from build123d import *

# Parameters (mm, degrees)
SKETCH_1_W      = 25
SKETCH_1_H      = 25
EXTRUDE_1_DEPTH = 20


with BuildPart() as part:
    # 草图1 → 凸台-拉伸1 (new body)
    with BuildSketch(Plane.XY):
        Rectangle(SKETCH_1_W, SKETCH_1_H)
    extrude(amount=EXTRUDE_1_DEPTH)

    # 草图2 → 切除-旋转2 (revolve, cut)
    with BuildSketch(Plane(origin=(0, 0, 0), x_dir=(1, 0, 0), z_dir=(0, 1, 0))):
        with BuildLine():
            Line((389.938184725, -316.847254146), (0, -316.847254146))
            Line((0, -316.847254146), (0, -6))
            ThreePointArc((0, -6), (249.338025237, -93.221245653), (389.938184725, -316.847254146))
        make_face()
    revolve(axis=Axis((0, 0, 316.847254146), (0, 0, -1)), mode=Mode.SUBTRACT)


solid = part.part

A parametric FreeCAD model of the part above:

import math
import FreeCAD as App
import Part
import Sketcher
from FreeCAD import Vector
Q = App.Units.Quantity


def add_polygon(sketch, points):
    """Adds a closed chain of lines whose ends are joined by coincident constraints."""
    first, n = sketch.GeometryCount, len(points)
    for a, b in zip(points, points[1:] + points[:1]):
        sketch.addGeometry(Part.LineSegment(App.Vector(*a, 0), App.Vector(*b, 0)), False)
    for i in range(n):
        sketch.addConstraint(Sketcher.Constraint("Coincident", first + i, 2, first + (i + 1) % n, 1))

doc = App.newDocument("Part")
body = doc.addObject("PartDesign::Body", "Body")

sketch1 = body.newObject("Sketcher::SketchObject", "Sketch")
sketch1.AttachmentSupport = (doc.getObject("XY_Plane"), [""])
sketch1.MapMode = "FlatFace"
add_polygon(sketch1, [(-12, 12), (-12, -12), (12, -12), (12, 12)])
sketch1.addConstraint([
    Sketcher.Constraint("Vertical", 0),
    Sketcher.Constraint("Horizontal", 1),
    Sketcher.Constraint("Vertical", 2),
    Sketcher.Constraint("Horizontal", 3),
    Sketcher.Constraint("Symmetric", 0, 2, 2, 2, -1, 1),
    Sketcher.Constraint("Equal", 3, 0),
    Sketcher.Constraint("DistanceX", 1, 1, 1, 2, Q("25 mm")),
])
pad1 = body.newObject("PartDesign::Pad", "Pad")
pad1.Profile = sketch1
pad1.Length = 20

sketch2 = body.newObject("Sketcher::SketchObject", "Sketch001")
sketch2.AttachmentSupport = (doc.getObject("XZ_Plane"), [""])
sketch2.MapMode = "FlatFace"
sketch2.addGeometry([
    Part.LineSegment(Vector(0, 317, 0), Vector(390, 317, 0)),
    Part.ArcOfCircle(Part.Circle(Vector(0, 406, 0), Vector(0, 0, 1), 400), math.radians(-90), math.radians(-13)),
    Part.LineSegment(Vector(0, 6, 0), Vector(0, 317, 0)),
], False)
sketch2.addConstraint([
    Sketcher.Constraint("Coincident", 0, 2, 1, 2),
    Sketcher.Constraint("Coincident", 1, 1, 2, 1),
    Sketcher.Constraint("Coincident", 2, 2, 0, 1),
    Sketcher.Constraint("Horizontal", 0),
    Sketcher.Constraint("Vertical", 2),
    Sketcher.Constraint("PointOnObject", 1, 3, -2),
    Sketcher.Constraint("PointOnObject", 2, 2, -2),
    Sketcher.Constraint("Radius", 1, Q("400 mm")),
    Sketcher.Constraint("DistanceY", -1, 1, 1, 3, Q("406 mm")),
    Sketcher.Constraint("DistanceX", 0, 1, 0, 2, Q("389.938185 mm")),
])
groove = body.newObject("PartDesign::Groove", "Groove")
groove.Profile = sketch2
groove.ReferenceAxis = (sketch2, ["V_Axis"])
groove.Angle = 360

doc.recompute()
